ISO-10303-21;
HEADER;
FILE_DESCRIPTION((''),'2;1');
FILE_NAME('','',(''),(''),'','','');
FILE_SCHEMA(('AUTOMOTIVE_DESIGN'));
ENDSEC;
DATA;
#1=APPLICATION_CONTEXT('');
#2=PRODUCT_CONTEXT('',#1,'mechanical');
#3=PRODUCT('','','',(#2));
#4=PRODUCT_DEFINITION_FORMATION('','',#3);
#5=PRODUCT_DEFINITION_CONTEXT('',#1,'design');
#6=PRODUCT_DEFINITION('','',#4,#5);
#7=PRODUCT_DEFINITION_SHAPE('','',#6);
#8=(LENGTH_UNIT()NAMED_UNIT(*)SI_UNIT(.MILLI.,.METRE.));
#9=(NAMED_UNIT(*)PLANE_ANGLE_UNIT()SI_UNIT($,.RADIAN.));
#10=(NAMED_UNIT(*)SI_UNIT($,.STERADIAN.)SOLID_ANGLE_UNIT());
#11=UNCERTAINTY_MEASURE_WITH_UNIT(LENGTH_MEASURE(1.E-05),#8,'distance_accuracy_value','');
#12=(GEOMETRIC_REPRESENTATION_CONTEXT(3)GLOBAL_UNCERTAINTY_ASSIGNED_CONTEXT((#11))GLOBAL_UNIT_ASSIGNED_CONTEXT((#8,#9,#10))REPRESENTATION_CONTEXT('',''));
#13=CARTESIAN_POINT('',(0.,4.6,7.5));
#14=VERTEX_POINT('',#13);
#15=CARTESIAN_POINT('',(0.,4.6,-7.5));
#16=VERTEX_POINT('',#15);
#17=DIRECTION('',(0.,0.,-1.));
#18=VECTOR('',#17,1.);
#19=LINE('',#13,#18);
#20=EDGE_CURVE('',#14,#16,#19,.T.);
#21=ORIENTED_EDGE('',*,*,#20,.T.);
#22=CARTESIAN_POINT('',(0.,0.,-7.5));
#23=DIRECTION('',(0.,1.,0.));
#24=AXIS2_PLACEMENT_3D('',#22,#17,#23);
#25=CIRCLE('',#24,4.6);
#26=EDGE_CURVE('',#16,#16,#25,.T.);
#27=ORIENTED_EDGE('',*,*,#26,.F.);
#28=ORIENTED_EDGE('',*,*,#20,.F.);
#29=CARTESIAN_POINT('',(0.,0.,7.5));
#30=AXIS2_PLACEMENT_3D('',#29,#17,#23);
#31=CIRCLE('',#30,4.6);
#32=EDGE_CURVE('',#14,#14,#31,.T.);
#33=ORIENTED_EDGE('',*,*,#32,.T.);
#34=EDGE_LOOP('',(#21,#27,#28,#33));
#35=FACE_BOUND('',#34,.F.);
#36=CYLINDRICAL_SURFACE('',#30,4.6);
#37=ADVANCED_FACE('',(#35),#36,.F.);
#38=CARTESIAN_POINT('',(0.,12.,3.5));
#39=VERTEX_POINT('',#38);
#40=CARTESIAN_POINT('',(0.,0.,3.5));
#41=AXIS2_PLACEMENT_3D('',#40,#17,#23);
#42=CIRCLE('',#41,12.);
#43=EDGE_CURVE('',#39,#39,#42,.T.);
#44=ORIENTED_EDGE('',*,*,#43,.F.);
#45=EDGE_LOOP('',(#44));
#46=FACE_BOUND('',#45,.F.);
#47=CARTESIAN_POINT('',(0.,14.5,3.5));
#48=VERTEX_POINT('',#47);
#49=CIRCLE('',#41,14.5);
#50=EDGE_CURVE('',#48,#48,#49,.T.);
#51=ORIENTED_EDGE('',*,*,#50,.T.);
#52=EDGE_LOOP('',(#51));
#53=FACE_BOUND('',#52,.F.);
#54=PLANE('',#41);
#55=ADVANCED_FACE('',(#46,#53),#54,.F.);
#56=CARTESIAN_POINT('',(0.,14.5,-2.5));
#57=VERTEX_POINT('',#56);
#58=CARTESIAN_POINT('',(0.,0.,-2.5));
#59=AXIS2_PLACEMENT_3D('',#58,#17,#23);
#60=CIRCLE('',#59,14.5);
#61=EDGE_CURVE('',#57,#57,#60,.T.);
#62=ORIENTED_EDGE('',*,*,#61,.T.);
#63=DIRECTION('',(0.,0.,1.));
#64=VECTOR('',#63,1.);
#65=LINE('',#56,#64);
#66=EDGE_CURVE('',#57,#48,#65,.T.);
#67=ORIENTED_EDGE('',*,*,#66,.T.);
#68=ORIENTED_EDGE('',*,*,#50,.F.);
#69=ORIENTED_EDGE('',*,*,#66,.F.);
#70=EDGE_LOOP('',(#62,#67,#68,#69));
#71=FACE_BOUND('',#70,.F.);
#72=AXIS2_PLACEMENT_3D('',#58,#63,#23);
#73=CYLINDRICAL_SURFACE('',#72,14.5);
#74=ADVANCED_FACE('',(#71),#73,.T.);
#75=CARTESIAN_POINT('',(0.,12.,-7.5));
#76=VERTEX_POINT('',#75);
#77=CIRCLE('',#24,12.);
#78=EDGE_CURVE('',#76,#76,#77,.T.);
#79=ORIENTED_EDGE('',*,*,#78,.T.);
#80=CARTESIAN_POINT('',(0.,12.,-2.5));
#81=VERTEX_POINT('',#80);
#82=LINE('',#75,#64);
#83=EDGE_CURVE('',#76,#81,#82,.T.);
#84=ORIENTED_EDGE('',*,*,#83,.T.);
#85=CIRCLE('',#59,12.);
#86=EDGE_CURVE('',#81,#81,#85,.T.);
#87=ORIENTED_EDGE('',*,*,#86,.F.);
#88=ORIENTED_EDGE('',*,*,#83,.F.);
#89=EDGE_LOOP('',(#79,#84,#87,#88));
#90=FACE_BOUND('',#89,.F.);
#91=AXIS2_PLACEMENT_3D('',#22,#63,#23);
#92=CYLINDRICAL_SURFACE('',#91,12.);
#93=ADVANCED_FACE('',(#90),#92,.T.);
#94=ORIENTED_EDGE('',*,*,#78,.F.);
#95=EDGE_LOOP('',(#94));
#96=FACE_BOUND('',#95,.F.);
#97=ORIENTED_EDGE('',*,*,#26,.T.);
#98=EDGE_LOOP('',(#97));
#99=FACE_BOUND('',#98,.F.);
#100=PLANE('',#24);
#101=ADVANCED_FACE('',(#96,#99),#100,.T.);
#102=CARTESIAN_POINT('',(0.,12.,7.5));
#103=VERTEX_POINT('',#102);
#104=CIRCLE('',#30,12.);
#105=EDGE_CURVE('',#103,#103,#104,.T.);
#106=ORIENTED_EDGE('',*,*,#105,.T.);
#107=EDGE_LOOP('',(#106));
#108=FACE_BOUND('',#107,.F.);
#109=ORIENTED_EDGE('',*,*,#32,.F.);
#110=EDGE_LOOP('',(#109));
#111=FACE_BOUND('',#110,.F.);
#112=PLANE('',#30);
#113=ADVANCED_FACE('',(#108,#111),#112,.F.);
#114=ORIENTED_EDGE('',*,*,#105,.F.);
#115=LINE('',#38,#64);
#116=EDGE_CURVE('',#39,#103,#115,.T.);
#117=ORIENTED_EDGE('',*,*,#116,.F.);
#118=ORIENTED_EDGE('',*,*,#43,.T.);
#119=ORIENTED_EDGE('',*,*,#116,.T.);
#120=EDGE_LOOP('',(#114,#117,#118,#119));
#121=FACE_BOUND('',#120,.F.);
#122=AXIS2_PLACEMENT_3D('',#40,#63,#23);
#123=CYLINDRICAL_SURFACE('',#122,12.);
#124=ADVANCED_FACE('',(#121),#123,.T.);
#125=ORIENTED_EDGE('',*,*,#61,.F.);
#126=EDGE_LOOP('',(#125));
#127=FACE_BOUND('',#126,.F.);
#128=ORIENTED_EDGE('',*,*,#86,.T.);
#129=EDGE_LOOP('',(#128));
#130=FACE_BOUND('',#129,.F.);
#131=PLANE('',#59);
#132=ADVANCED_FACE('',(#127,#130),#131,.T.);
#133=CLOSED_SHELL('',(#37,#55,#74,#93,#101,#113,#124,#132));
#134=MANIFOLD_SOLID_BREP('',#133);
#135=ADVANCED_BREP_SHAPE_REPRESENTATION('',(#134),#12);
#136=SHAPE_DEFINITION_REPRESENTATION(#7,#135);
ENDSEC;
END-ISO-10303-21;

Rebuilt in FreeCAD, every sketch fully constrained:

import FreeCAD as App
import Part
import Sketcher
from FreeCAD import Vector


def add_polygon(sketch, points):
    """Adds a closed chain of lines whose ends are joined by coincident constraints."""
    first, n = sketch.GeometryCount, len(points)
    for a, b in zip(points, points[1:] + points[:1]):
        sketch.addGeometry(Part.LineSegment(App.Vector(*a, 0), App.Vector(*b, 0)), False)
    for i in range(n):
        sketch.addConstraint(Sketcher.Constraint("Coincident", first + i, 2, first + (i + 1) % n, 1))

doc = App.newDocument("Part")
params = doc.addObject("Spreadsheet::Sheet", "Params")
for row, (alias, value) in enumerate([
    ("sketch1_height", "15 mm"),
    ("sketch1_height2", "5 mm"),
    ("sketch1_height3", "6 mm"),
    ("sketch1_width", "7.4 mm"),
    ("sketch1_width2", "2.5 mm"),
    ("revolution_angle", "360 deg"),
], start=1):
    params.set(f"A{row}", alias)
    params.set(f"B{row}", "=" + value)
    params.setAlias(f"B{row}", alias)

body = doc.addObject("PartDesign::Body", "Body")

# Sketch on YZ plane
sketch1 = body.newObject("Sketcher::SketchObject", "Sketch")
sketch1.AttachmentSupport = (doc.getObject("YZ_Plane"), [""])
sketch1.MapMode = "FlatFace"
add_polygon(sketch1, [(12, 7.5), (4.6, 7.5), (4.6, -7.5), (12, -7.5), (12, -2.5), (14.5, -2.5), (14.5, 3.5), (12, 3.5)])  # lines 0-7
sketch1.addConstraint(Sketcher.Constraint("Horizontal", 0))
sketch1.addConstraint(Sketcher.Constraint("Vertical", 1))
sketch1.addConstraint(Sketcher.Constraint("Horizontal", 2))
sketch1.addConstraint(Sketcher.Constraint("Vertical", 3))
sketch1.addConstraint(Sketcher.Constraint("Horizontal", 4))
sketch1.addConstraint(Sketcher.Constraint("Vertical", 5))
sketch1.addConstraint(Sketcher.Constraint("Horizontal", 6))
sketch1.addConstraint(Sketcher.Constraint("Vertical", 7))
sketch1.addConstraint(Sketcher.Constraint("Symmetric", 2, 2, 7, 2, -1))
sketch1.addConstraint(Sketcher.Constraint("DistanceY", 1, 2, 1, 1, 15.0))
sketch1.addConstraint(Sketcher.Constraint("DistanceY", 3, 1, 3, 2, 5.0))
sketch1.addConstraint(Sketcher.Constraint("DistanceY", 5, 1, 5, 2, 6.0))
sketch1.addConstraint(Sketcher.Constraint("DistanceX", 0, 2, 0, 1, 7.4))
sketch1.addConstraint(Sketcher.Constraint("DistanceX", 4, 1, 4, 2, 2.5))
sketch1.addConstraint(Sketcher.Constraint("DistanceX", -1, 1, 2, 2, 12.0))
sketch1.setExpression("Constraints[17]", "Params.sketch1_height")
sketch1.setExpression("Constraints[18]", "Params.sketch1_height2")
sketch1.setExpression("Constraints[19]", "Params.sketch1_height3")
sketch1.setExpression("Constraints[20]", "Params.sketch1_width")
sketch1.setExpression("Constraints[21]", "Params.sketch1_width2")
revolution = body.newObject("PartDesign::Revolution", "Revolution")
revolution.Profile = sketch1
revolution.ReferenceAxis = (sketch1, ["V_Axis"])
revolution.setExpression("Angle", "Params.revolution_angle")

doc.recompute()
